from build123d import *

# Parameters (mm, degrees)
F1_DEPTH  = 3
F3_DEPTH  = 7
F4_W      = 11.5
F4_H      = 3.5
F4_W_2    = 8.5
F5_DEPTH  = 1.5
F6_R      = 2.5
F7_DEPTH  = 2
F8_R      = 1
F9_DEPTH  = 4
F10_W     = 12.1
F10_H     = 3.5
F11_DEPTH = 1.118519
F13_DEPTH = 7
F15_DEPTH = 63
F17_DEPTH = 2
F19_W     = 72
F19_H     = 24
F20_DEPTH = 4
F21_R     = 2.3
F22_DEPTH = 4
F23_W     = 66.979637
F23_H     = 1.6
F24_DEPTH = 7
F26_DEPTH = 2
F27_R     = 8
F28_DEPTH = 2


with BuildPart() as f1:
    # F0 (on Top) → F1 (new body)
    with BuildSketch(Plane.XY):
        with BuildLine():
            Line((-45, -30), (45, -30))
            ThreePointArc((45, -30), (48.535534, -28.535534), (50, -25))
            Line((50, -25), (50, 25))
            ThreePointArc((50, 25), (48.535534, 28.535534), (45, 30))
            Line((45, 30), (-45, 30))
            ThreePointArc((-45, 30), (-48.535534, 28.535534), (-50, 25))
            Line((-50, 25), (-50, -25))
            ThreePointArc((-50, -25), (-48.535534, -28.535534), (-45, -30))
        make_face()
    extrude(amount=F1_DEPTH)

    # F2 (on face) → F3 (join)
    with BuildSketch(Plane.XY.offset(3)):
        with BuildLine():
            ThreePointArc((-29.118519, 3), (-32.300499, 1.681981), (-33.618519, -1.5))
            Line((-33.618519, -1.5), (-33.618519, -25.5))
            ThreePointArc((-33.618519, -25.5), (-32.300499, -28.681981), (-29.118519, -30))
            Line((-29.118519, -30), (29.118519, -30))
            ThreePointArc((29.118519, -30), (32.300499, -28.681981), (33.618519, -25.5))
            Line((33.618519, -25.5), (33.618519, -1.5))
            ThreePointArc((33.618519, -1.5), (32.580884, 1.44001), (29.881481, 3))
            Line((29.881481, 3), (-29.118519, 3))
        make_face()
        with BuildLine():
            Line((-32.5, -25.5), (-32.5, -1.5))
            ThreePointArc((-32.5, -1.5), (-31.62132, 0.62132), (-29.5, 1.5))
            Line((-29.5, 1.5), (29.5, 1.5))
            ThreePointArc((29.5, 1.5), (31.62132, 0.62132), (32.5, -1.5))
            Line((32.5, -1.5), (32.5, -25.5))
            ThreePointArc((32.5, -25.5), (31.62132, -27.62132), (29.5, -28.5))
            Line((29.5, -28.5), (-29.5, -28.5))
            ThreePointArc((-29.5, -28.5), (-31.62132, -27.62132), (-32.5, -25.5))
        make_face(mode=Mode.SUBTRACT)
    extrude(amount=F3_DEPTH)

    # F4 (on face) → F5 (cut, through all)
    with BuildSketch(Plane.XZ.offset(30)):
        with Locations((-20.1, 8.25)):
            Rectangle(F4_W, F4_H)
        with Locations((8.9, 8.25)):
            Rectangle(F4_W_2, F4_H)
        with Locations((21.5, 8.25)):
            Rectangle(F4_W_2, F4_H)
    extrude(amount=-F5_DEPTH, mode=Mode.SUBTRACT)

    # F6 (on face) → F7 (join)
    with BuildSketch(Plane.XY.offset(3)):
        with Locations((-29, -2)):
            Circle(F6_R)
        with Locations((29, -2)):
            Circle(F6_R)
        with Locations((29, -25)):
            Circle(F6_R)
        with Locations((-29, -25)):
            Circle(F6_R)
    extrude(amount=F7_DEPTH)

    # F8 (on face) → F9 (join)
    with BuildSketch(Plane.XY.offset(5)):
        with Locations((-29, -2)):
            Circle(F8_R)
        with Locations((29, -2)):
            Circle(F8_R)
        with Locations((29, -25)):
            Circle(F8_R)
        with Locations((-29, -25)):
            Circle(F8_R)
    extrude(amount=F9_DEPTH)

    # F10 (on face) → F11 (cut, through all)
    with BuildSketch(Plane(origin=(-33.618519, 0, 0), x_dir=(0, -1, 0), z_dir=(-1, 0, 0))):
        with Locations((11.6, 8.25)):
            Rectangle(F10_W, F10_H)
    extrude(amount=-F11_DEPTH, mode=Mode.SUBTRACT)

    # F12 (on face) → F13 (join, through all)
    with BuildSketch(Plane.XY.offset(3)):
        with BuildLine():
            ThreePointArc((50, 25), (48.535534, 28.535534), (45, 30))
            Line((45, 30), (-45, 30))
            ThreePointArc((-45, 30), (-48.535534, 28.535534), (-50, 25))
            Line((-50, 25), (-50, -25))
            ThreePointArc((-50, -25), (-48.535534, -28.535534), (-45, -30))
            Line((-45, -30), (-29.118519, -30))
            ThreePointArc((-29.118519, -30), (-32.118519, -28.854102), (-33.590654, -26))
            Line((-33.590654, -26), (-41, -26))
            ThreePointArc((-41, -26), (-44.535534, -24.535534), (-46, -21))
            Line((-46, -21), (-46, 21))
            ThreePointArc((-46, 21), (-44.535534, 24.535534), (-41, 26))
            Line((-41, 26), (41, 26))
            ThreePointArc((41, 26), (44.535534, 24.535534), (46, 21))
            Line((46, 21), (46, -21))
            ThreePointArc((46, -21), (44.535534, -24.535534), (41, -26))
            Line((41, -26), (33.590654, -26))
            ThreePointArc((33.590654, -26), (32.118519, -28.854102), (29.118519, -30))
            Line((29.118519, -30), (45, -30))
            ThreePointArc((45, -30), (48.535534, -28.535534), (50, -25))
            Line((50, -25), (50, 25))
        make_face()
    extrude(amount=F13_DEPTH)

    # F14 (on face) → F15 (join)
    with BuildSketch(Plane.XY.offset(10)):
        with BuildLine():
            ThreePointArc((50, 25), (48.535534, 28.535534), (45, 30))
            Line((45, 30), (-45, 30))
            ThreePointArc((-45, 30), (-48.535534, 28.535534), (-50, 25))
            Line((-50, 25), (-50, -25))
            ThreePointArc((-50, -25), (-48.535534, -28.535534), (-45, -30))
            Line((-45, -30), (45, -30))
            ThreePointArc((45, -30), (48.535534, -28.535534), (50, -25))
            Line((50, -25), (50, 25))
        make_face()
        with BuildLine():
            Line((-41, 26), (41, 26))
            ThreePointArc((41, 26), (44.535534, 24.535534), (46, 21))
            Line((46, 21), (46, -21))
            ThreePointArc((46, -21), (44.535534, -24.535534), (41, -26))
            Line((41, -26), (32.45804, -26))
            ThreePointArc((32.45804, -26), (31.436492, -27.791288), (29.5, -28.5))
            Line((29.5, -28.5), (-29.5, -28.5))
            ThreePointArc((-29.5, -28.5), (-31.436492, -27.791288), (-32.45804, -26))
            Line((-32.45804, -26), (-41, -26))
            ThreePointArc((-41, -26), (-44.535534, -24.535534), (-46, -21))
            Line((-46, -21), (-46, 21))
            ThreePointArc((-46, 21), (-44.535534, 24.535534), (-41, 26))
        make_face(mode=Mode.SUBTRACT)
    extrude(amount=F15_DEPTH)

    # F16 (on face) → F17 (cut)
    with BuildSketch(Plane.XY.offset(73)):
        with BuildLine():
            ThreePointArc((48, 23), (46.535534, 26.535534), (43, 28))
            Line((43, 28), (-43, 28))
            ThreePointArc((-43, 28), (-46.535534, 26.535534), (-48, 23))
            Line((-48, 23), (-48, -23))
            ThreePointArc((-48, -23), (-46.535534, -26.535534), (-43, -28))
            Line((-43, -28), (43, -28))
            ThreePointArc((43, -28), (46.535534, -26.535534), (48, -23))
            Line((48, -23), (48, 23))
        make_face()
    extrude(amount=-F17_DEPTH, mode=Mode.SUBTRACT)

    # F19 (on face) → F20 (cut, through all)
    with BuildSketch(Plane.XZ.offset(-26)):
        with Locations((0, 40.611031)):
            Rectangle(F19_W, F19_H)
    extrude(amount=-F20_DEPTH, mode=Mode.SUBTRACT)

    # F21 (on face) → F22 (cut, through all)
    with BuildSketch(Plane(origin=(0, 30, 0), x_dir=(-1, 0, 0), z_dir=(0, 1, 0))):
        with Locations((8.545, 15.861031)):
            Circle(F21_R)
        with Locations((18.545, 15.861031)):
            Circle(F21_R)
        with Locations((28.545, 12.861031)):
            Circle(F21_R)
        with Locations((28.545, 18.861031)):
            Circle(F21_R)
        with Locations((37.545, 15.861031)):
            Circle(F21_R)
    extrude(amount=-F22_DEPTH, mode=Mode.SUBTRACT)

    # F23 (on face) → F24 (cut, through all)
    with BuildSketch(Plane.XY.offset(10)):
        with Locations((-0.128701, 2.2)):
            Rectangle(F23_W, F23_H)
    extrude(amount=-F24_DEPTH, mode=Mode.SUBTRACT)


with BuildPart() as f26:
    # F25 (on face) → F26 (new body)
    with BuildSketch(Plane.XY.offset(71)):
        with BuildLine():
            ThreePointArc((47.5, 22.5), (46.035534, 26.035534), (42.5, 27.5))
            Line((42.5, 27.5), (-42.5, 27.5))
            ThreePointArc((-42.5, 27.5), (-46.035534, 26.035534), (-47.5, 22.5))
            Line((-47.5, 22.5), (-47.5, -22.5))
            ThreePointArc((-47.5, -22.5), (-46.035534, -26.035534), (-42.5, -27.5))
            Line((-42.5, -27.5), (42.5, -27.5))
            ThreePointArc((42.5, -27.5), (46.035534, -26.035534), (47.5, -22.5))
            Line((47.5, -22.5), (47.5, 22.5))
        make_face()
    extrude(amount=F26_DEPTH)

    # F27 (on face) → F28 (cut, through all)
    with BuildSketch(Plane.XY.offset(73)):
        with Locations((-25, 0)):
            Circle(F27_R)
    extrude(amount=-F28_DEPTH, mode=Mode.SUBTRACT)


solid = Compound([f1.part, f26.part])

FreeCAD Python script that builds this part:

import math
import FreeCAD as App
import Part
import Sketcher
from FreeCAD import Vector


def add_polygon(sketch, points):
    """Adds a closed chain of lines whose ends are joined by coincident constraints."""
    first, n = sketch.GeometryCount, len(points)
    for a, b in zip(points, points[1:] + points[:1]):
        sketch.addGeometry(Part.LineSegment(App.Vector(*a, 0), App.Vector(*b, 0)), False)
    for i in range(n):
        sketch.addConstraint(Sketcher.Constraint("Coincident", first + i, 2, first + (i + 1) % n, 1))

doc = App.newDocument("Part")
params = doc.addObject("Spreadsheet::Sheet", "Params")
for row, (alias, value) in enumerate([
    ("sketch1_radius", "5 mm"),
    ("sketch1_width", "90 mm"),
    ("sketch1_height", "50 mm"),
    ("pad1_length", "3 mm"),
    ("sketch2_radius", "3.000001 mm"),
    ("sketch2_radius2", "4.5 mm"),
    ("sketch2_width", "59 mm"),
    ("sketch2_height", "24 mm"),
    ("pad2_length", "7 mm"),
    ("sketch3_width", "11.5 mm"),
    ("sketch3_width2", "8.5 mm"),
    ("sketch3_height", "3.5 mm"),
    ("pocket1_length", "1.5 mm"),
    ("sketch4_diameter", "5 mm"),
    ("pad3_length", "2 mm"),
    ("sketch5_diameter", "2 mm"),
    ("pad4_length", "4 mm"),
    ("sketch6_width", "12.1 mm"),
    ("sketch6_height", "3.5 mm"),
    ("pocket2_length", "1.118519 mm"),
    ("sketch7_radius", "5 mm"),
    ("sketch7_radius2", "4.499998 mm"),
    ("sketch7_width", "90 mm"),
    ("sketch7_width2", "82 mm"),
    ("sketch7_height", "50 mm"),
    ("pad5_length", "7 mm"),
    ("sketch8_radius", "5 mm"),
    ("sketch8_radius2", "2.999999 mm"),
    ("sketch8_width", "90 mm"),
    ("sketch8_width2", "82 mm"),
    ("sketch8_width3", "59 mm"),
    ("pad6_length", "63 mm"),
    ("sketch9_radius", "5 mm"),
    ("sketch9_width", "86 mm"),
    ("sketch9_height", "46 mm"),
    ("pocket3_length", "2 mm"),
    ("sketch10_width", "72 mm"),
    ("sketch10_height", "24 mm"),
    ("sketch11_diameter", "4.6 mm"),
    ("pocket5_length", "4 mm"),
    ("sketch12_height", "1.6 mm"),
    ("pocket6_length", "7 mm"),
    ("sketch13_radius", "5 mm"),
    ("sketch13_width", "85 mm"),
    ("sketch13_height", "45 mm"),
    ("pad7_length", "2 mm"),
    ("sketch14_diameter", "16 mm"),
], start=1):
    params.set(f"A{row}", alias)
    params.set(f"B{row}", "=" + value)
    params.setAlias(f"B{row}", alias)

body = doc.addObject("PartDesign::Body", "Body")

# Sketch on XY plane
sketch1 = body.newObject("Sketcher::SketchObject", "Sketch")
sketch1.AttachmentSupport = (doc.getObject("XY_Plane"), [""])
sketch1.MapMode = "FlatFace"
sketch1.addGeometry(Part.LineSegment(Vector(-45, -30, 0), Vector(45, -30, 0)), False)
sketch1.addGeometry(Part.ArcOfCircle(Part.Circle(Vector(45, -25, 0), Vector(0, 0, 1), 5), math.radians(-90), math.radians(0)), False)
sketch1.addGeometry(Part.LineSegment(Vector(50, -25, 0), Vector(50, 25, 0)), False)
sketch1.addGeometry(Part.ArcOfCircle(Part.Circle(Vector(45, 25, 0), Vector(0, 0, 1), 5), math.radians(0), math.radians(90)), False)
sketch1.addGeometry(Part.LineSegment(Vector(45, 30, 0), Vector(-45, 30, 0)), False)
sketch1.addGeometry(Part.ArcOfCircle(Part.Circle(Vector(-45, 25, 0), Vector(0, 0, 1), 5), math.radians(90), math.radians(180)), False)
sketch1.addGeometry(Part.LineSegment(Vector(-50, 25, 0), Vector(-50, -25, 0)), False)
sketch1.addGeometry(Part.ArcOfCircle(Part.Circle(Vector(-45, -25, 0), Vector(0, 0, 1), 5), math.radians(180), math.radians(270)), False)
sketch1.addConstraint(Sketcher.Constraint("Tangent", 0, 2, 1, 1))
sketch1.addConstraint(Sketcher.Constraint("Tangent", 1, 2, 2, 1))
sketch1.addConstraint(Sketcher.Constraint("Tangent", 2, 2, 3, 1))
sketch1.addConstraint(Sketcher.Constraint("Tangent", 3, 2, 4, 1))
sketch1.addConstraint(Sketcher.Constraint("Tangent", 4, 2, 5, 1))
sketch1.addConstraint(Sketcher.Constraint("Tangent", 5, 2, 6, 1))
sketch1.addConstraint(Sketcher.Constraint("Tangent", 6, 2, 7, 1))
sketch1.addConstraint(Sketcher.Constraint("Tangent", 7, 2, 0, 1))
sketch1.addConstraint(Sketcher.Constraint("Horizontal", 0))
sketch1.addConstraint(Sketcher.Constraint("Vertical", 2))
sketch1.addConstraint(Sketcher.Constraint("Horizontal", 4))
sketch1.addConstraint(Sketcher.Constraint("Vertical", 6))
sketch1.addConstraint(Sketcher.Constraint("Equal", 1, 3))
sketch1.addConstraint(Sketcher.Constraint("Equal", 3, 5))
sketch1.addConstraint(Sketcher.Constraint("Equal", 5, 7))
sketch1.addConstraint(Sketcher.Constraint("Symmetric", 1, 3, 5, 3, -1, 1))
sketch1.addConstraint(Sketcher.Constraint("Radius", 1, 5.0))
sketch1.addConstraint(Sketcher.Constraint("DistanceX", 0, 1, 0, 2, 90.0))
sketch1.addConstraint(Sketcher.Constraint("DistanceY", 2, 1, 2, 2, 50.0))
sketch1.setExpression("Constraints[16]", "Params.sketch1_radius")
sketch1.setExpression("Constraints[17]", "Params.sketch1_width")
sketch1.setExpression("Constraints[18]", "Params.sketch1_height")
pad1 = body.newObject("PartDesign::Pad", "Pad")
pad1.Profile = sketch1
pad1.setExpression("Length", "Params.pad1_length")

# Sketch on XY plane
sketch2 = body.newObject("Sketcher::SketchObject", "Sketch001")
sketch2.AttachmentSupport = (doc.getObject("XY_Plane"), [""])
sketch2.MapMode = "FlatFace"
sketch2.AttachmentOffset = App.Placement(Vector(0, 0, 3), App.Rotation())
sketch2.addGeometry(Part.ArcOfCircle(Part.Circle(Vector(-29.1, -1.5, 0), Vector(0, 0, 1), 4.5), math.radians(90), math.radians(180)), False)
sketch2.addGeometry(Part.LineSegment(Vector(-33.6, -1.5, 0), Vector(-33.6, -25.5, 0)), False)
sketch2.addGeometry(Part.ArcOfCircle(Part.Circle(Vector(-29.1, -25.5, 0), Vector(0, 0, 1), 4.5), math.radians(-180), math.radians(-90)), False)
sketch2.addGeometry(Part.LineSegment(Vector(-29.1, -30, 0), Vector(29.1, -30, 0)), False)
sketch2.addGeometry(Part.ArcOfCircle(Part.Circle(Vector(29.1, -25.5, 0), Vector(0, 0, 1), 4.5), math.radians(-90), math.radians(0)), False)
sketch2.addGeometry(Part.LineSegment(Vector(33.6, -25.5, 0), Vector(33.6, -1.5, 0)), False)
sketch2.addGeometry(Part.ArcOfCircle(Part.Circle(Vector(29.1, -1.4, 0), Vector(0, 0, 1), 4.5), math.radians(-1), math.radians(80)), False)
sketch2.addGeometry(Part.LineSegment(Vector(29.9, 3, 0), Vector(-29.1, 3, 0)), False)
sketch2.addGeometry(Part.ArcOfCircle(Part.Circle(Vector(-29.5, -25.5, 0), Vector(0, 0, 1), 3), math.radians(-180), math.radians(-90)), False)
sketch2.addGeometry(Part.LineSegment(Vector(-32.5, -25.5, 0), Vector(-32.5, -1.5, 0)), False)
sketch2.addGeometry(Part.ArcOfCircle(Part.Circle(Vector(-29.5, -1.5, 0), Vector(0, 0, 1), 3), math.radians(90), math.radians(180)), False)
sketch2.addGeometry(Part.LineSegment(Vector(-29.5, 1.5, 0), Vector(29.5, 1.5, 0)), False)
sketch2.addGeometry(Part.ArcOfCircle(Part.Circle(Vector(29.5, -1.5, 0), Vector(0, 0, 1), 3), math.radians(0), math.radians(90)), False)
sketch2.addGeometry(Part.LineSegment(Vector(32.5, -1.5, 0), Vector(32.5, -25.5, 0)), False)
sketch2.addGeometry(Part.ArcOfCircle(Part.Circle(Vector(29.5, -25.5, 0), Vector(0, 0, 1), 3), math.radians(-90), math.radians(0)), False)
sketch2.addGeometry(Part.LineSegment(Vector(29.5, -28.5, 0), Vector(-29.5, -28.5, 0)), False)
sketch2.addConstraint(Sketcher.Constraint("Tangent", 0, 2, 1, 1))
sketch2.addConstraint(Sketcher.Constraint("Tangent", 1, 2, 2, 1))
sketch2.addConstraint(Sketcher.Constraint("Tangent", 2, 2, 3, 1))
sketch2.addConstraint(Sketcher.Constraint("Tangent", 3, 2, 4, 1))
sketch2.addConstraint(Sketcher.Constraint("Tangent", 4, 2, 5, 1))
sketch2.addConstraint(Sketcher.Constraint("Coincident", 5, 2, 6, 1))
sketch2.addConstraint(Sketcher.Constraint("Coincident", 6, 2, 7, 1))
sketch2.addConstraint(Sketcher.Constraint("Tangent", 7, 2, 0, 1))
sketch2.addConstraint(Sketcher.Constraint("Tangent", 8, 1, 9, 1))
sketch2.addConstraint(Sketcher.Constraint("Tangent", 9, 2, 10, 2))
sketch2.addConstraint(Sketcher.Constraint("Tangent", 10, 1, 11, 1))
sketch2.addConstraint(Sketcher.Constraint("Tangent", 11, 2, 12, 2))
sketch2.addConstraint(Sketcher.Constraint("Tangent", 12, 1, 13, 1))
sketch2.addConstraint(Sketcher.Constraint("Tangent", 13, 2, 14, 2))
sketch2.addConstraint(Sketcher.Constraint("Tangent", 14, 1, 15, 1))
sketch2.addConstraint(Sketcher.Constraint("Tangent", 15, 2, 8, 2))
sketch2.addConstraint(Sketcher.Constraint("Vertical", 1))
sketch2.addConstraint(Sketcher.Constraint("Horizontal", 3))
sketch2.addConstraint(Sketcher.Constraint("Vertical", 5))
sketch2.addConstraint(Sketcher.Constraint("Horizontal", 7))
sketch2.addConstraint(Sketcher.Constraint("Vertical", 9))
sketch2.addConstraint(Sketcher.Constraint("Horizontal", 11))
sketch2.addConstraint(Sketcher.Constraint("Vertical", 13))
sketch2.addConstraint(Sketcher.Constraint("Horizontal", 15))
sketch2.addConstraint(Sketcher.Constraint("Equal", 0, 2))
sketch2.addConstraint(Sketcher.Constraint("Equal", 2, 4))
sketch2.addConstraint(Sketcher.Constraint("Equal", 4, 6))
sketch2.addConstraint(Sketcher.Constraint("Equal", 8, 10))
sketch2.addConstraint(Sketcher.Constraint("Equal", 10, 12))
sketch2.addConstraint(Sketcher.Constraint("Equal", 12, 14))
sketch2.addConstraint(Sketcher.Constraint("Symmetric", 0, 2, 5, 2, -2))
sketch2.addConstraint(Sketcher.Constraint("Horizontal", 4, 3, 8, 3))
sketch2.addConstraint(Sketcher.Constraint("Horizontal", 0, 3, 10, 3))
sketch2.addConstraint(Sketcher.Constraint("Equal", 7, 11))
sketch2.addConstraint(Sketcher.Constraint("Radius", 8, 3.000001))
sketch2.addConstraint(Sketcher.Constraint("Radius", 0, 4.5))
sketch2.addConstraint(Sketcher.Constraint("DistanceX", 7, 2, 7, 1, 59.0))
sketch2.addConstraint(Sketcher.Constraint("DistanceY", 1, 2, 1, 1, 24.0))
sketch2.addConstraint(Sketcher.Constraint("DistanceY", 2, 2, -1, 1, 30.0))
sketch2.addConstraint(Sketcher.Constraint("DistanceX", 8, 3, -1, 1, 29.499999))
sketch2.addConstraint(Sketcher.Constraint("DistanceX", 3, 1, 3, 2, 58.237038))
sketch2.setExpression("Constraints[34]", "Params.sketch2_radius")
sketch2.setExpression("Constraints[35]", "Params.sketch2_radius2")
sketch2.setExpression("Constraints[36]", "Params.sketch2_width")
sketch2.setExpression("Constraints[37]", "Params.sketch2_height")
pad2 = body.newObject("PartDesign::Pad", "Pad001")
pad2.Profile = sketch2
pad2.setExpression("Length", "Params.pad2_length")

# Sketch on XZ plane
sketch3 = body.newObject("Sketcher::SketchObject", "Sketch002")
sketch3.AttachmentSupport = (doc.getObject("XZ_Plane"), [""])
sketch3.MapMode = "FlatFace"
sketch3.AttachmentOffset = App.Placement(Vector(0, 0, 30), App.Rotation())
add_polygon(sketch3, [(-25.9, 10), (-25.9, 6.5), (-14.3, 6.5), (-14.3, 10)])  # lines 0-3
add_polygon(sketch3, [(4.7, 10), (4.7, 6.5), (13.2, 6.5), (13.2, 10)])  # lines 4-7
add_polygon(sketch3, [(17.2, 10), (17.2, 6.5), (25.8, 6.5), (25.8, 10)])  # lines 8-11
sketch3.addConstraint(Sketcher.Constraint("Vertical", 0))
sketch3.addConstraint(Sketcher.Constraint("Horizontal", 1))
sketch3.addConstraint(Sketcher.Constraint("Vertical", 2))
sketch3.addConstraint(Sketcher.Constraint("Horizontal", 3))
sketch3.addConstraint(Sketcher.Constraint("Vertical", 4))
sketch3.addConstraint(Sketcher.Constraint("Horizontal", 5))
sketch3.addConstraint(Sketcher.Constraint("Vertical", 6))
sketch3.addConstraint(Sketcher.Constraint("Horizontal", 7))
sketch3.addConstraint(Sketcher.Constraint("Vertical", 8))
sketch3.addConstraint(Sketcher.Constraint("Horizontal", 9))
sketch3.addConstraint(Sketcher.Constraint("Vertical", 10))
sketch3.addConstraint(Sketcher.Constraint("Horizontal", 11))
sketch3.addConstraint(Sketcher.Constraint("Horizontal", 1, 2, 4, 2))
sketch3.addConstraint(Sketcher.Constraint("Horizontal", 3, 2, 6, 2))
sketch3.addConstraint(Sketcher.Constraint("Horizontal", 5, 2, 8, 2))
sketch3.addConstraint(Sketcher.Constraint("Horizontal", 7, 2, 10, 2))
sketch3.addConstraint(Sketcher.Constraint("Equal", 7, 9))
sketch3.addConstraint(Sketcher.Constraint("DistanceX", 1, 1, 1, 2, 11.5))
sketch3.addConstraint(Sketcher.Constraint("DistanceX", 5, 1, 5, 2, 8.5))
sketch3.addConstraint(Sketcher.Constraint("DistanceY", 0, 2, 0, 1, 3.5))
sketch3.addConstraint(Sketcher.Constraint("DistanceY", -1, 1, 2, 2, 10.0))
sketch3.addConstraint(Sketcher.Constraint("DistanceX", 1, 2, 4, 2, 19.0))
sketch3.addConstraint(Sketcher.Constraint("DistanceX", 5, 2, 8, 2, 4.1))
sketch3.addConstraint(Sketcher.Constraint("DistanceX", 0, 2, -1, 1, 25.85))
sketch3.setExpression("Constraints[29]", "Params.sketch3_width")
sketch3.setExpression("Constraints[30]", "Params.sketch3_width2")
sketch3.setExpression("Constraints[31]", "Params.sketch3_height")
pocket1 = body.newObject("PartDesign::Pocket", "Pocket")
pocket1.Profile = sketch3
pocket1.setExpression("Length", "Params.pocket1_length")

# Sketch on XY plane
sketch4 = body.newObject("Sketcher::SketchObject", "Sketch003")
sketch4.AttachmentSupport = (doc.getObject("XY_Plane"), [""])
sketch4.MapMode = "FlatFace"
sketch4.AttachmentOffset = App.Placement(Vector(0, 0, 3), App.Rotation())
sketch4.addGeometry(Part.Circle(Vector(-29, -2, 0), Vector(0, 0, 1), 2.5), False)
sketch4.addGeometry(Part.Circle(Vector(29, -2, 0), Vector(0, 0, 1), 2.5), False)
sketch4.addGeometry(Part.Circle(Vector(29, -25, 0), Vector(0, 0, 1), 2.5), False)
sketch4.addGeometry(Part.Circle(Vector(-29, -25, 0), Vector(0, 0, 1), 2.5), False)
sketch4.addConstraint(Sketcher.Constraint("Equal", 0, 1))
sketch4.addConstraint(Sketcher.Constraint("Equal", 1, 2))
sketch4.addConstraint(Sketcher.Constraint("Equal", 2, 3))
sketch4.addConstraint(Sketcher.Constraint("Symmetric", 0, 3, 1, 3, -2))
sketch4.addConstraint(Sketcher.Constraint("Symmetric", 2, 3, 3, 3, -2))
sketch4.addConstraint(Sketcher.Constraint("Vertical", 1, 3, 2, 3))
sketch4.addConstraint(Sketcher.Constraint("Diameter", 0, 5.0))
sketch4.addConstraint(Sketcher.Constraint("DistanceX", 0, 3, -1, 1, 29.0))
sketch4.addConstraint(Sketcher.Constraint("DistanceY", 0, 3, -1, 1, 2.0))
sketch4.addConstraint(Sketcher.Constraint("DistanceY", 2, 3, -1, 1, 25.0))
sketch4.setExpression("Constraints[6]", "Params.sketch4_diameter")
pad3 = body.newObject("PartDesign::Pad", "Pad002")
pad3.Profile = sketch4
pad3.setExpression("Length", "Params.pad3_length")

# Sketch on XY plane
sketch5 = body.newObject("Sketcher::SketchObject", "Sketch004")
sketch5.AttachmentSupport = (doc.getObject("XY_Plane"), [""])
sketch5.MapMode = "FlatFace"
sketch5.AttachmentOffset = App.Placement(Vector(0, 0, 5), App.Rotation())
sketch5.addGeometry(Part.Circle(Vector(-29, -2, 0), Vector(0, 0, 1), 1), False)
sketch5.addGeometry(Part.Circle(Vector(29, -2, 0), Vector(0, 0, 1), 1), False)
sketch5.addGeometry(Part.Circle(Vector(29, -25, 0), Vector(0, 0, 1), 1), False)
sketch5.addGeometry(Part.Circle(Vector(-29, -25, 0), Vector(0, 0, 1), 1), False)
sketch5.addConstraint(Sketcher.Constraint("Equal", 0, 1))
sketch5.addConstraint(Sketcher.Constraint("Equal", 1, 2))
sketch5.addConstraint(Sketcher.Constraint("Equal", 2, 3))
sketch5.addConstraint(Sketcher.Constraint("Symmetric", 0, 3, 1, 3, -2))
sketch5.addConstraint(Sketcher.Constraint("Symmetric", 2, 3, 3, 3, -2))
sketch5.addConstraint(Sketcher.Constraint("Vertical", 1, 3, 2, 3))
sketch5.addConstraint(Sketcher.Constraint("Diameter", 0, 2.0))
sketch5.addConstraint(Sketcher.Constraint("DistanceX", 0, 3, -1, 1, 29.0))
sketch5.addConstraint(Sketcher.Constraint("DistanceY", 0, 3, -1, 1, 2.0))
sketch5.addConstraint(Sketcher.Constraint("DistanceY", 2, 3, -1, 1, 25.0))
sketch5.setExpression("Constraints[6]", "Params.sketch5_diameter")
pad4 = body.newObject("PartDesign::Pad", "Pad003")
pad4.Profile = sketch5
pad4.setExpression("Length", "Params.pad4_length")

# Sketch on YZ plane
sketch6 = body.newObject("Sketcher::SketchObject", "Sketch005")
sketch6.AttachmentSupport = (doc.getObject("YZ_Plane"), [""])
sketch6.MapMode = "FlatFace"
sketch6.AttachmentOffset = App.Placement(Vector(0, 0, -33.618519), App.Rotation())
add_polygon(sketch6, [(-5.5, 10), (-5.5, 6.5), (-17.6, 6.5), (-17.6, 10)])  # lines 0-3
sketch6.addConstraint(Sketcher.Constraint("Vertical", 0))
sketch6.addConstraint(Sketcher.Constraint("Horizontal", 1))
sketch6.addConstraint(Sketcher.Constraint("Vertical", 2))
sketch6.addConstraint(Sketcher.Constraint("Horizontal", 3))
sketch6.addConstraint(Sketcher.Constraint("DistanceX", 1, 2, 1, 1, 12.1))
sketch6.addConstraint(Sketcher.Constraint("DistanceY", 0, 2, 0, 1, 3.5))
sketch6.addConstraint(Sketcher.Constraint("DistanceY", -1, 1, 2, 2, 10.0))
sketch6.addConstraint(Sketcher.Constraint("DistanceX", 0, 2, -1, 1, 5.55))
sketch6.setExpression("Constraints[8]", "Params.sketch6_width")
sketch6.setExpression("Constraints[9]", "Params.sketch6_height")
pocket2 = body.newObject("PartDesign::Pocket", "Pocket001")
pocket2.Profile = sketch6
pocket2.setExpression("Length", "Params.pocket2_length")
pocket2.Reversed = True

# Sketch on XY plane
sketch7 = body.newObject("Sketcher::SketchObject", "Sketch006")
sketch7.AttachmentSupport = (doc.getObject("XY_Plane"), [""])
sketch7.MapMode = "FlatFace"
sketch7.AttachmentOffset = App.Placement(Vector(0, 0, 3), App.Rotation())
sketch7.addGeometry(Part.ArcOfCircle(Part.Circle(Vector(45, 25, 0), Vector(0, 0, 1), 5), math.radians(0), math.radians(90)), False)
sketch7.addGeometry(Part.LineSegment(Vector(45, 30, 0), Vector(-45, 30, 0)), False)
sketch7.addGeometry(Part.ArcOfCircle(Part.Circle(Vector(-45, 25, 0), Vector(0, 0, 1), 5), math.radians(90), math.radians(180)), False)
sketch7.addGeometry(Part.LineSegment(Vector(-50, 25, 0), Vector(-50, -25, 0)), False)
sketch7.addGeometry(Part.ArcOfCircle(Part.Circle(Vector(-45, -25, 0), Vector(0, 0, 1), 5), math.radians(180), math.radians(270)), False)
sketch7.addGeometry(Part.LineSegment(Vector(-45, -30, 0), Vector(-29.1, -30, 0)), False)
sketch7.addGeometry(Part.ArcOfCircle(Part.Circle(Vector(-29.1, -25.5, 0), Vector(0, 0, 1), 4.5), math.radians(-174), math.radians(-90)), False)
sketch7.addGeometry(Part.LineSegment(Vector(-33.6, -26, 0), Vector(-41, -26, 0)), False)
sketch7.addGeometry(Part.ArcOfCircle(Part.Circle(Vector(-41, -21, 0), Vector(0, 0, 1), 5), math.radians(180), math.radians(270)), False)
sketch7.addGeometry(Part.LineSegment(Vector(-46, -21, 0), Vector(-46, 21, 0)), False)
sketch7.addGeometry(Part.ArcOfCircle(Part.Circle(Vector(-41, 21, 0), Vector(0, 0, 1), 5), math.radians(90), math.radians(180)), False)
sketch7.addGeometry(Part.LineSegment(Vector(-41, 26, 0), Vector(41, 26, 0)), False)
sketch7.addGeometry(Part.ArcOfCircle(Part.Circle(Vector(41, 21, 0), Vector(0, 0, 1), 5), math.radians(0), math.radians(90)), False)
sketch7.addGeometry(Part.LineSegment(Vector(46, 21, 0), Vector(46, -21, 0)), False)
sketch7.addGeometry(Part.ArcOfCircle(Part.Circle(Vector(41, -21, 0), Vector(0, 0, 1), 5), math.radians(-90), math.radians(0)), False)
sketch7.addGeometry(Part.LineSegment(Vector(41, -26, 0), Vector(33.6, -26, 0)), False)
sketch7.addGeometry(Part.ArcOfCircle(Part.Circle(Vector(29.1, -25.5, 0), Vector(0, 0, 1), 4.5), math.radians(-90), math.radians(-6)), False)
sketch7.addGeometry(Part.LineSegment(Vector(29.1, -30, 0), Vector(45, -30, 0)), False)
sketch7.addGeometry(Part.ArcOfCircle(Part.Circle(Vector(45, -25, 0), Vector(0, 0, 1), 5), math.radians(-90), math.radians(0)), False)
sketch7.addGeometry(Part.LineSegment(Vector(50, -25, 0), Vector(50, 25, 0)), False)
sketch7.addConstraint(Sketcher.Constraint("Tangent", 0, 2, 1, 1))
sketch7.addConstraint(Sketcher.Constraint("Tangent", 1, 2, 2, 1))
sketch7.addConstraint(Sketcher.Constraint("Tangent", 2, 2, 3, 1))
sketch7.addConstraint(Sketcher.Constraint("Tangent", 3, 2, 4, 1))
sketch7.addConstraint(Sketcher.Constraint("Tangent", 4, 2, 5, 1))
sketch7.addConstraint(Sketcher.Constraint("Tangent", 5, 2, 6, 2))
sketch7.addConstraint(Sketcher.Constraint("Coincident", 6, 1, 7, 1))
sketch7.addConstraint(Sketcher.Constraint("Tangent", 7, 2, 8, 2))
sketch7.addConstraint(Sketcher.Constraint("Tangent", 8, 1, 9, 1))
sketch7.addConstraint(Sketcher.Constraint("Tangent", 9, 2, 10, 2))
sketch7.addConstraint(Sketcher.Constraint("Tangent", 10, 1, 11, 1))
sketch7.addConstraint(Sketcher.Constraint("Tangent", 11, 2, 12, 2))
sketch7.addConstraint(Sketcher.Constraint("Tangent", 12, 1, 13, 1))
sketch7.addConstraint(Sketcher.Constraint("Tangent", 13, 2, 14, 2))
sketch7.addConstraint(Sketcher.Constraint("Tangent", 14, 1, 15, 1))
sketch7.addConstraint(Sketcher.Constraint("Coincident", 15, 2, 16, 2))
sketch7.addConstraint(Sketcher.Constraint("Tangent", 16, 1, 17, 1))
sketch7.addConstraint(Sketcher.Constraint("Tangent", 17, 2, 18, 1))
sketch7.addConstraint(Sketcher.Constraint("Tangent", 18, 2, 19, 1))
sketch7.addConstraint(Sketcher.Constraint("Tangent", 19, 2, 0, 1))
sketch7.addConstraint(Sketcher.Constraint("Horizontal", 1))
sketch7.addConstraint(Sketcher.Constraint("Vertical", 3))
sketch7.addConstraint(Sketcher.Constraint("Horizontal", 5))
sketch7.addConstraint(Sketcher.Constraint("Horizontal", 7))
sketch7.addConstraint(Sketcher.Constraint("Vertical", 9))
sketch7.addConstraint(Sketcher.Constraint("Horizontal", 11))
sketch7.addConstraint(Sketcher.Constraint("Vertical", 13))
sketch7.addConstraint(Sketcher.Constraint("Horizontal", 15))
sketch7.addConstraint(Sketcher.Constraint("Horizontal", 17))
sketch7.addConstraint(Sketcher.Constraint("Vertical", 19))
sketch7.addConstraint(Sketcher.Constraint("Equal", 0, 2))
sketch7.addConstraint(Sketcher.Constraint("Equal", 2, 4))
sketch7.addConstraint(Sketcher.Constraint("Equal", 4, 8))
sketch7.addConstraint(Sketcher.Constraint("Equal", 8, 10))
sketch7.addConstraint(Sketcher.Constraint("Equal", 10, 12))
sketch7.addConstraint(Sketcher.Constraint("Equal", 12, 14))
sketch7.addConstraint(Sketcher.Constraint("Equal", 6, 16))
sketch7.addConstraint(Sketcher.Constraint("Equal", 14, 18))
sketch7.addConstraint(Sketcher.Constraint("Symmetric", 0, 3, 4, 3, -1, 1))
sketch7.addConstraint(Sketcher.Constraint("Symmetric", 8, 3, 12, 3, -1, 1))
sketch7.addConstraint(Sketcher.Constraint("Symmetric", 6, 3, 16, 3, -2))
sketch7.addConstraint(Sketcher.Constraint("Horizontal", 8, 3, 14, 3))
sketch7.addConstraint(Sketcher.Constraint("Radius", 0, 5.0))
sketch7.addConstraint(Sketcher.Constraint("Radius", 6, 4.499998))
sketch7.addConstraint(Sketcher.Constraint("DistanceX", 1, 2, 1, 1, 90.0))
sketch7.addConstraint(Sketcher.Constraint("DistanceX", 11, 1, 11, 2, 82.0))
sketch7.addConstraint(Sketcher.Constraint("DistanceY", 3, 2, 3, 1, 50.0))
sketch7.addConstraint(Sketcher.Constraint("DistanceY", 9, 1, 9, 2, 42.0))
sketch7.addConstraint(Sketcher.Constraint("DistanceX", 5, 1, 5, 2, 15.881481))
sketch7.setExpression("Constraints[42]", "Params.sketch7_radius")
sketch7.setExpression("Constraints[43]", "Params.sketch7_radius2")
sketch7.setExpression("Constraints[44]", "Params.sketch7_width")
sketch7.setExpression("Constraints[45]", "Params.sketch7_width2")
sketch7.setExpression("Constraints[46]", "Params.sketch7_height")
pad5 = body.newObject("PartDesign::Pad", "Pad004")
pad5.Profile = sketch7
pad5.setExpression("Length", "Params.pad5_length")

# Sketch on XY plane
sketch8 = body.newObject("Sketcher::SketchObject", "Sketch007")
sketch8.AttachmentSupport = (doc.getObject("XY_Plane"), [""])
sketch8.MapMode = "FlatFace"
sketch8.AttachmentOffset = App.Placement(Vector(0, 0, 10), App.Rotation())
sketch8.addGeometry(Part.ArcOfCircle(Part.Circle(Vector(45, 25, 0), Vector(0, 0, 1), 5), math.radians(0), math.radians(90)), False)
sketch8.addGeometry(Part.LineSegment(Vector(45, 30, 0), Vector(-45, 30, 0)), False)
sketch8.addGeometry(Part.ArcOfCircle(Part.Circle(Vector(-45, 25, 0), Vector(0, 0, 1), 5), math.radians(90), math.radians(180)), False)
sketch8.addGeometry(Part.LineSegment(Vector(-50, 25, 0), Vector(-50, -25, 0)), False)
sketch8.addGeometry(Part.ArcOfCircle(Part.Circle(Vector(-45, -25, 0), Vector(0, 0, 1), 5), math.radians(180), math.radians(270)), False)
sketch8.addGeometry(Part.LineSegment(Vector(-45, -30, 0), Vector(45, -30, 0)), False)
sketch8.addGeometry(Part.ArcOfCircle(Part.Circle(Vector(45, -25, 0), Vector(0, 0, 1), 5), math.radians(-90), math.radians(0)), False)
sketch8.addGeometry(Part.LineSegment(Vector(50, -25, 0), Vector(50, 25, 0)), False)
sketch8.addGeometry(Part.ArcOfCircle(Part.Circle(Vector(-41, 21, 0), Vector(0, 0, 1), 5), math.radians(90), math.radians(180)), False)
sketch8.addGeometry(Part.LineSegment(Vector(-41, 26, 0), Vector(41, 26, 0)), False)
sketch8.addGeometry(Part.ArcOfCircle(Part.Circle(Vector(41, 21, 0), Vector(0, 0, 1), 5), math.radians(0), math.radians(90)), False)
sketch8.addGeometry(Part.LineSegment(Vector(46, 21, 0), Vector(46, -21, 0)), False)
sketch8.addGeometry(Part.ArcOfCircle(Part.Circle(Vector(41, -21, 0), Vector(0, 0, 1), 5), math.radians(-90), math.radians(0)), False)
sketch8.addGeometry(Part.LineSegment(Vector(41, -26, 0), Vector(32.5, -26, 0)), False)
sketch8.addGeometry(Part.ArcOfCircle(Part.Circle(Vector(29.5, -25.5, 0), Vector(0, 0, 1), 3), math.radians(-90), math.radians(-10)), False)
sketch8.addGeometry(Part.LineSegment(Vector(29.5, -28.5, 0), Vector(-29.5, -28.5, 0)), False)
sketch8.addGeometry(Part.ArcOfCircle(Part.Circle(Vector(-29.5, -25.5, 0), Vector(0, 0, 1), 3), math.radians(-170), math.radians(-90)), False)
sketch8.addGeometry(Part.LineSegment(Vector(-32.5, -26, 0), Vector(-41, -26, 0)), False)
sketch8.addGeometry(Part.ArcOfCircle(Part.Circle(Vector(-41, -21, 0), Vector(0, 0, 1), 5), math.radians(180), math.radians(270)), False)
sketch8.addGeometry(Part.LineSegment(Vector(-46, -21, 0), Vector(-46, 21, 0)), False)
sketch8.addConstraint(Sketcher.Constraint("Tangent", 0, 2, 1, 1))
sketch8.addConstraint(Sketcher.Constraint("Tangent", 1, 2, 2, 1))
sketch8.addConstraint(Sketcher.Constraint("Tangent", 2, 2, 3, 1))
sketch8.addConstraint(Sketcher.Constraint("Tangent", 3, 2, 4, 1))
sketch8.addConstraint(Sketcher.Constraint("Tangent", 4, 2, 5, 1))
sketch8.addConstraint(Sketcher.Constraint("Tangent", 5, 2, 6, 1))
sketch8.addConstraint(Sketcher.Constraint("Tangent", 6, 2, 7, 1))
sketch8.addConstraint(Sketcher.Constraint("Tangent", 7, 2, 0, 1))
sketch8.addConstraint(Sketcher.Constraint("Tangent", 8, 1, 9, 1))
sketch8.addConstraint(Sketcher.Constraint("Tangent", 9, 2, 10, 2))
sketch8.addConstraint(Sketcher.Constraint("Tangent", 10, 1, 11, 1))
sketch8.addConstraint(Sketcher.Constraint("Tangent", 11, 2, 12, 2))
sketch8.addConstraint(Sketcher.Constraint("Tangent", 12, 1, 13, 1))
sketch8.addConstraint(Sketcher.Constraint("Coincident", 13, 2, 14, 2))
sketch8.addConstraint(Sketcher.Constraint("Tangent", 14, 1, 15, 1))
sketch8.addConstraint(Sketcher.Constraint("Tangent", 15, 2, 16, 2))
sketch8.addConstraint(Sketcher.Constraint("Coincident", 16, 1, 17, 1))
sketch8.addConstraint(Sketcher.Constraint("Tangent", 17, 2, 18, 2))
sketch8.addConstraint(Sketcher.Constraint("Tangent", 18, 1, 19, 1))
sketch8.addConstraint(Sketcher.Constraint("Tangent", 19, 2, 8, 2))
sketch8.addConstraint(Sketcher.Constraint("Horizontal", 1))
sketch8.addConstraint(Sketcher.Constraint("Vertical", 3))
sketch8.addConstraint(Sketcher.Constraint("Horizontal", 5))
sketch8.addConstraint(Sketcher.Constraint("Vertical", 7))
sketch8.addConstraint(Sketcher.Constraint("Horizontal", 9))
sketch8.addConstraint(Sketcher.Constraint("Vertical", 11))
sketch8.addConstraint(Sketcher.Constraint("Horizontal", 13))
sketch8.addConstraint(Sketcher.Constraint("Horizontal", 15))
sketch8.addConstraint(Sketcher.Constraint("Horizontal", 17))
sketch8.addConstraint(Sketcher.Constraint("Vertical", 19))
sketch8.addConstraint(Sketcher.Constraint("Equal", 0, 2))
sketch8.addConstraint(Sketcher.Constraint("Equal", 2, 4))
sketch8.addConstraint(Sketcher.Constraint("Equal", 4, 6))
sketch8.addConstraint(Sketcher.Constraint("Equal", 6, 8))
sketch8.addConstraint(Sketcher.Constraint("Equal", 8, 10))
sketch8.addConstraint(Sketcher.Constraint("Equal", 10, 12))
sketch8.addConstraint(Sketcher.Constraint("Equal", 14, 16))
sketch8.addConstraint(Sketcher.Constraint("Equal", 12, 18))
sketch8.addConstraint(Sketcher.Constraint("Symmetric", 0, 3, 4, 3, -1, 1))
sketch8.addConstraint(Sketcher.Constraint("Symmetric", 8, 3, 12, 3, -1, 1))
sketch8.addConstraint(Sketcher.Constraint("Symmetric", 13, 2, 16, 1, -2))
sketch8.addConstraint(Sketcher.Constraint("Radius", 0, 5.0))
sketch8.addConstraint(Sketcher.Constraint("Radius", 14, 2.999999))
sketch8.addConstraint(Sketcher.Constraint("DistanceX", 1, 2, 1, 1, 90.0))
sketch8.addConstraint(Sketcher.Constraint("DistanceX", 9, 1, 9, 2, 82.0))
sketch8.addConstraint(Sketcher.Constraint("DistanceX", 15, 2, 15, 1, 59.0))
sketch8.addConstraint(Sketcher.Constraint("DistanceY", 3, 2, 3, 1, 50.0))
sketch8.addConstraint(Sketcher.Constraint("DistanceY", 11, 2, 11, 1, 42.0))
sketch8.addConstraint(Sketcher.Constraint("DistanceY", 14, 3, -1, 1, 25.500001))
sketch8.setExpression("Constraints[41]", "Params.sketch8_radius")
sketch8.setExpression("Constraints[42]", "Params.sketch8_radius2")
sketch8.setExpression("Constraints[43]", "Params.sketch8_width")
sketch8.setExpression("Constraints[44]", "Params.sketch8_width2")
sketch8.setExpression("Constraints[45]", "Params.sketch8_width3")
pad6 = body.newObject("PartDesign::Pad", "Pad005")
pad6.Profile = sketch8
pad6.setExpression("Length", "Params.pad6_length")

# Sketch on XY plane
sketch9 = body.newObject("Sketcher::SketchObject", "Sketch008")
sketch9.AttachmentSupport = (doc.getObject("XY_Plane"), [""])
sketch9.MapMode = "FlatFace"
sketch9.AttachmentOffset = App.Placement(Vector(0, 0, 73), App.Rotation())
sketch9.addGeometry(Part.ArcOfCircle(Part.Circle(Vector(43, 23, 0), Vector(0, 0, 1), 5), math.radians(0), math.radians(90)), False)
sketch9.addGeometry(Part.LineSegment(Vector(43, 28, 0), Vector(-43, 28, 0)), False)
sketch9.addGeometry(Part.ArcOfCircle(Part.Circle(Vector(-43, 23, 0), Vector(0, 0, 1), 5), math.radians(90), math.radians(180)), False)
sketch9.addGeometry(Part.LineSegment(Vector(-48, 23, 0), Vector(-48, -23, 0)), False)
sketch9.addGeometry(Part.ArcOfCircle(Part.Circle(Vector(-43, -23, 0), Vector(0, 0, 1), 5), math.radians(180), math.radians(270)), False)
sketch9.addGeometry(Part.LineSegment(Vector(-43, -28, 0), Vector(43, -28, 0)), False)
sketch9.addGeometry(Part.ArcOfCircle(Part.Circle(Vector(43, -23, 0), Vector(0, 0, 1), 5), math.radians(-90), math.radians(0)), False)
sketch9.addGeometry(Part.LineSegment(Vector(48, -23, 0), Vector(48, 23, 0)), False)
sketch9.addConstraint(Sketcher.Constraint("Tangent", 0, 2, 1, 1))
sketch9.addConstraint(Sketcher.Constraint("Tangent", 1, 2, 2, 1))
sketch9.addConstraint(Sketcher.Constraint("Tangent", 2, 2, 3, 1))
sketch9.addConstraint(Sketcher.Constraint("Tangent", 3, 2, 4, 1))
sketch9.addConstraint(Sketcher.Constraint("Tangent", 4, 2, 5, 1))
sketch9.addConstraint(Sketcher.Constraint("Tangent", 5, 2, 6, 1))
sketch9.addConstraint(Sketcher.Constraint("Tangent", 6, 2, 7, 1))
sketch9.addConstraint(Sketcher.Constraint("Tangent", 7, 2, 0, 1))
sketch9.addConstraint(Sketcher.Constraint("Horizontal", 1))
sketch9.addConstraint(Sketcher.Constraint("Vertical", 3))
sketch9.addConstraint(Sketcher.Constraint("Horizontal", 5))
sketch9.addConstraint(Sketcher.Constraint("Vertical", 7))
sketch9.addConstraint(Sketcher.Constraint("Equal", 0, 2))
sketch9.addConstraint(Sketcher.Constraint("Equal", 2, 4))
sketch9.addConstraint(Sketcher.Constraint("Equal", 4, 6))
sketch9.addConstraint(Sketcher.Constraint("Symmetric", 0, 3, 4, 3, -1, 1))
sketch9.addConstraint(Sketcher.Constraint("Radius", 0, 5.0))
sketch9.addConstraint(Sketcher.Constraint("DistanceX", 1, 2, 1, 1, 86.0))
sketch9.addConstraint(Sketcher.Constraint("DistanceY", 3, 2, 3, 1, 46.0))
sketch9.setExpression("Constraints[16]", "Params.sketch9_radius")
sketch9.setExpression("Constraints[17]", "Params.sketch9_width")
sketch9.setExpression("Constraints[18]", "Params.sketch9_height")
pocket3 = body.newObject("PartDesign::Pocket", "Pocket002")
pocket3.Profile = sketch9
pocket3.setExpression("Length", "Params.pocket3_length")

# Sketch on XZ plane
sketch10 = body.newObject("Sketcher::SketchObject", "Sketch009")
sketch10.AttachmentSupport = (doc.getObject("XZ_Plane"), [""])
sketch10.MapMode = "FlatFace"
sketch10.AttachmentOffset = App.Placement(Vector(0, 0, -26), App.Rotation())
add_polygon(sketch10, [(-36, 53), (-36, 29), (36, 29), (36, 53)])  # lines 0-3
sketch10.addConstraint(Sketcher.Constraint("Vertical", 0))
sketch10.addConstraint(Sketcher.Constraint("Horizontal", 1))
sketch10.addConstraint(Sketcher.Constraint("Vertical", 2))
sketch10.addConstraint(Sketcher.Constraint("Horizontal", 3))
sketch10.addConstraint(Sketcher.Constraint("DistanceX", 1, 1, 1, 2, 72.0))
sketch10.addConstraint(Sketcher.Constraint("DistanceY", 0, 2, 0, 1, 24.0))
sketch10.addConstraint(Sketcher.Constraint("DistanceX", 0, 2, -1, 1, 36.0))
sketch10.addConstraint(Sketcher.Constraint("DistanceY", -1, 1, 0, 2, 28.611031))
sketch10.setExpression("Constraints[8]", "Params.sketch10_width")
sketch10.setExpression("Constraints[9]", "Params.sketch10_height")
pocket4 = body.newObject("PartDesign::Pocket", "Pocket003")
pocket4.Profile = sketch10
pocket4.Type = "ThroughAll"

# Sketch on XZ plane
sketch11 = body.newObject("Sketcher::SketchObject", "Sketch010")
sketch11.AttachmentSupport = (doc.getObject("XZ_Plane"), [""])
sketch11.MapMode = "FlatFace"
sketch11.AttachmentOffset = App.Placement(Vector(0, 0, -30), App.Rotation())
sketch11.addGeometry(Part.Circle(Vector(-8.5, 15.9, 0), Vector(0, 0, 1), 2.3), False)
sketch11.addGeometry(Part.Circle(Vector(-18.5, 15.9, 0), Vector(0, 0, 1), 2.3), False)
sketch11.addGeometry(Part.Circle(Vector(-28.5, 12.9, 0), Vector(0, 0, 1), 2.3), False)
sketch11.addGeometry(Part.Circle(Vector(-28.5, 18.9, 0), Vector(0, 0, 1), 2.3), False)
sketch11.addGeometry(Part.Circle(Vector(-37.5, 15.9, 0), Vector(0, 0, 1), 2.3), False)
sketch11.addConstraint(Sketcher.Constraint("Equal", 0, 1))
sketch11.addConstraint(Sketcher.Constraint("Equal", 1, 2))
sketch11.addConstraint(Sketcher.Constraint("Equal", 2, 3))
sketch11.addConstraint(Sketcher.Constraint("Equal", 3, 4))
sketch11.addConstraint(Sketcher.Constraint("Horizontal", 0, 3, 1, 3))
sketch11.addConstraint(Sketcher.Constraint("Horizontal", 1, 3, 4, 3))
sketch11.addConstraint(Sketcher.Constraint("Vertical", 2, 3, 3, 3))
sketch11.addConstraint(Sketcher.Constraint("Diameter", 0, 4.6))
sketch11.addConstraint(Sketcher.Constraint("DistanceX", 1, 3, 0, 3, 10.0))
sketch11.addConstraint(Sketcher.Constraint("DistanceX", 2, 3, 1, 3, 10.0))
sketch11.addConstraint(Sketcher.Constraint("DistanceY", 2, 3, 1, 3, 3.0))
sketch11.addConstraint(Sketcher.Constraint("DistanceY", 2, 3, 3, 3, 6.0))
sketch11.addConstraint(Sketcher.Constraint("DistanceX", 4, 3, 2, 3, 9.0))
sketch11.addConstraint(Sketcher.Constraint("DistanceX", 0, 3, -1, 1, 8.545))
sketch11.addConstraint(Sketcher.Constraint("DistanceY", -1, 1, 0, 3, 15.861031))
sketch11.setExpression("Constraints[7]", "Params.sketch11_diameter")
pocket5 = body.newObject("PartDesign::Pocket", "Pocket004")
pocket5.Profile = sketch11
pocket5.setExpression("Length", "Params.pocket5_length")
pocket5.Reversed = True

# Sketch on XY plane
sketch12 = body.newObject("Sketcher::SketchObject", "Sketch011")
sketch12.AttachmentSupport = (doc.getObject("XY_Plane"), [""])
sketch12.MapMode = "FlatFace"
sketch12.AttachmentOffset = App.Placement(Vector(0, 0, 10), App.Rotation())
add_polygon(sketch12, [(-33.6, 3), (-33.6, 1.4), (33.4, 1.4), (33.4, 3)])  # lines 0-3
sketch12.addConstraint(Sketcher.Constraint("Vertical", 0))
sketch12.addConstraint(Sketcher.Constraint("Horizontal", 1))
sketch12.addConstraint(Sketcher.Constraint("Vertical", 2))
sketch12.addConstraint(Sketcher.Constraint("Horizontal", 3))
sketch12.addConstraint(Sketcher.Constraint("DistanceY", 0, 2, 0, 1, 1.6))
sketch12.addConstraint(Sketcher.Constraint("DistanceY", -1, 1, 2, 2, 3.0))
sketch12.addConstraint(Sketcher.Constraint("DistanceX", 1, 1, 1, 2, 66.979637))
sketch12.addConstraint(Sketcher.Constraint("DistanceX", 0, 2, -1, 1, 33.618519))
sketch12.setExpression("Constraints[8]", "Params.sketch12_height")
pocket6 = body.newObject("PartDesign::Pocket", "Pocket005")
pocket6.Profile = sketch12
pocket6.setExpression("Length", "Params.pocket6_length")
body2 = doc.addObject("PartDesign::Body", "Body001")

# Sketch on XY plane
sketch13 = body2.newObject("Sketcher::SketchObject", "Sketch012")
sketch13.AttachmentSupport = (doc.getObject("XY_Plane001"), [""])
sketch13.MapMode = "FlatFace"
sketch13.AttachmentOffset = App.Placement(Vector(0, 0, 71), App.Rotation())
sketch13.addGeometry(Part.ArcOfCircle(Part.Circle(Vector(42.5, 22.5, 0), Vector(0, 0, 1), 5), math.radians(0), math.radians(90)), False)
sketch13.addGeometry(Part.LineSegment(Vector(42.5, 27.5, 0), Vector(-42.5, 27.5, 0)), False)
sketch13.addGeometry(Part.ArcOfCircle(Part.Circle(Vector(-42.5, 22.5, 0), Vector(0, 0, 1), 5), math.radians(90), math.radians(180)), False)
sketch13.addGeometry(Part.LineSegment(Vector(-47.5, 22.5, 0), Vector(-47.5, -22.5, 0)), False)
sketch13.addGeometry(Part.ArcOfCircle(Part.Circle(Vector(-42.5, -22.5, 0), Vector(0, 0, 1), 5), math.radians(180), math.radians(270)), False)
sketch13.addGeometry(Part.LineSegment(Vector(-42.5, -27.5, 0), Vector(42.5, -27.5, 0)), False)
sketch13.addGeometry(Part.ArcOfCircle(Part.Circle(Vector(42.5, -22.5, 0), Vector(0, 0, 1), 5), math.radians(-90), math.radians(0)), False)
sketch13.addGeometry(Part.LineSegment(Vector(47.5, -22.5, 0), Vector(47.5, 22.5, 0)), False)
sketch13.addConstraint(Sketcher.Constraint("Tangent", 0, 2, 1, 1))
sketch13.addConstraint(Sketcher.Constraint("Tangent", 1, 2, 2, 1))
sketch13.addConstraint(Sketcher.Constraint("Tangent", 2, 2, 3, 1))
sketch13.addConstraint(Sketcher.Constraint("Tangent", 3, 2, 4, 1))
sketch13.addConstraint(Sketcher.Constraint("Tangent", 4, 2, 5, 1))
sketch13.addConstraint(Sketcher.Constraint("Tangent", 5, 2, 6, 1))
sketch13.addConstraint(Sketcher.Constraint("Tangent", 6, 2, 7, 1))
sketch13.addConstraint(Sketcher.Constraint("Tangent", 7, 2, 0, 1))
sketch13.addConstraint(Sketcher.Constraint("Horizontal", 1))
sketch13.addConstraint(Sketcher.Constraint("Vertical", 3))
sketch13.addConstraint(Sketcher.Constraint("Horizontal", 5))
sketch13.addConstraint(Sketcher.Constraint("Vertical", 7))
sketch13.addConstraint(Sketcher.Constraint("Equal", 0, 2))
sketch13.addConstraint(Sketcher.Constraint("Equal", 2, 4))
sketch13.addConstraint(Sketcher.Constraint("Equal", 4, 6))
sketch13.addConstraint(Sketcher.Constraint("Symmetric", 0, 3, 4, 3, -1, 1))
sketch13.addConstraint(Sketcher.Constraint("Radius", 0, 5.0))
sketch13.addConstraint(Sketcher.Constraint("DistanceX", 1, 2, 1, 1, 85.0))
sketch13.addConstraint(Sketcher.Constraint("DistanceY", 3, 2, 3, 1, 45.0))
sketch13.setExpression("Constraints[16]", "Params.sketch13_radius")
sketch13.setExpression("Constraints[17]", "Params.sketch13_width")
sketch13.setExpression("Constraints[18]", "Params.sketch13_height")
pad7 = body2.newObject("PartDesign::Pad", "Pad006")
pad7.Profile = sketch13
pad7.setExpression("Length", "Params.pad7_length")

# Sketch on XY plane
sketch14 = body2.newObject("Sketcher::SketchObject", "Sketch013")
sketch14.AttachmentSupport = (doc.getObject("XY_Plane001"), [""])
sketch14.MapMode = "FlatFace"
sketch14.AttachmentOffset = App.Placement(Vector(0, 0, 73), App.Rotation())
sketch14.addGeometry(Part.Circle(Vector(-25, 0, 0), Vector(0, 0, 1), 8), False)
sketch14.addConstraint(Sketcher.Constraint("PointOnObject", 0, 3, -1))
sketch14.addConstraint(Sketcher.Constraint("Diameter", 0, 16.0))
sketch14.addConstraint(Sketcher.Constraint("DistanceX", 0, 3, -1, 1, 25.0))
sketch14.setExpression("Constraints[1]", "Params.sketch14_diameter")
pocket7 = body2.newObject("PartDesign::Pocket", "Pocket006")
pocket7.Profile = sketch14
pocket7.Type = "ThroughAll"

doc.recompute()
